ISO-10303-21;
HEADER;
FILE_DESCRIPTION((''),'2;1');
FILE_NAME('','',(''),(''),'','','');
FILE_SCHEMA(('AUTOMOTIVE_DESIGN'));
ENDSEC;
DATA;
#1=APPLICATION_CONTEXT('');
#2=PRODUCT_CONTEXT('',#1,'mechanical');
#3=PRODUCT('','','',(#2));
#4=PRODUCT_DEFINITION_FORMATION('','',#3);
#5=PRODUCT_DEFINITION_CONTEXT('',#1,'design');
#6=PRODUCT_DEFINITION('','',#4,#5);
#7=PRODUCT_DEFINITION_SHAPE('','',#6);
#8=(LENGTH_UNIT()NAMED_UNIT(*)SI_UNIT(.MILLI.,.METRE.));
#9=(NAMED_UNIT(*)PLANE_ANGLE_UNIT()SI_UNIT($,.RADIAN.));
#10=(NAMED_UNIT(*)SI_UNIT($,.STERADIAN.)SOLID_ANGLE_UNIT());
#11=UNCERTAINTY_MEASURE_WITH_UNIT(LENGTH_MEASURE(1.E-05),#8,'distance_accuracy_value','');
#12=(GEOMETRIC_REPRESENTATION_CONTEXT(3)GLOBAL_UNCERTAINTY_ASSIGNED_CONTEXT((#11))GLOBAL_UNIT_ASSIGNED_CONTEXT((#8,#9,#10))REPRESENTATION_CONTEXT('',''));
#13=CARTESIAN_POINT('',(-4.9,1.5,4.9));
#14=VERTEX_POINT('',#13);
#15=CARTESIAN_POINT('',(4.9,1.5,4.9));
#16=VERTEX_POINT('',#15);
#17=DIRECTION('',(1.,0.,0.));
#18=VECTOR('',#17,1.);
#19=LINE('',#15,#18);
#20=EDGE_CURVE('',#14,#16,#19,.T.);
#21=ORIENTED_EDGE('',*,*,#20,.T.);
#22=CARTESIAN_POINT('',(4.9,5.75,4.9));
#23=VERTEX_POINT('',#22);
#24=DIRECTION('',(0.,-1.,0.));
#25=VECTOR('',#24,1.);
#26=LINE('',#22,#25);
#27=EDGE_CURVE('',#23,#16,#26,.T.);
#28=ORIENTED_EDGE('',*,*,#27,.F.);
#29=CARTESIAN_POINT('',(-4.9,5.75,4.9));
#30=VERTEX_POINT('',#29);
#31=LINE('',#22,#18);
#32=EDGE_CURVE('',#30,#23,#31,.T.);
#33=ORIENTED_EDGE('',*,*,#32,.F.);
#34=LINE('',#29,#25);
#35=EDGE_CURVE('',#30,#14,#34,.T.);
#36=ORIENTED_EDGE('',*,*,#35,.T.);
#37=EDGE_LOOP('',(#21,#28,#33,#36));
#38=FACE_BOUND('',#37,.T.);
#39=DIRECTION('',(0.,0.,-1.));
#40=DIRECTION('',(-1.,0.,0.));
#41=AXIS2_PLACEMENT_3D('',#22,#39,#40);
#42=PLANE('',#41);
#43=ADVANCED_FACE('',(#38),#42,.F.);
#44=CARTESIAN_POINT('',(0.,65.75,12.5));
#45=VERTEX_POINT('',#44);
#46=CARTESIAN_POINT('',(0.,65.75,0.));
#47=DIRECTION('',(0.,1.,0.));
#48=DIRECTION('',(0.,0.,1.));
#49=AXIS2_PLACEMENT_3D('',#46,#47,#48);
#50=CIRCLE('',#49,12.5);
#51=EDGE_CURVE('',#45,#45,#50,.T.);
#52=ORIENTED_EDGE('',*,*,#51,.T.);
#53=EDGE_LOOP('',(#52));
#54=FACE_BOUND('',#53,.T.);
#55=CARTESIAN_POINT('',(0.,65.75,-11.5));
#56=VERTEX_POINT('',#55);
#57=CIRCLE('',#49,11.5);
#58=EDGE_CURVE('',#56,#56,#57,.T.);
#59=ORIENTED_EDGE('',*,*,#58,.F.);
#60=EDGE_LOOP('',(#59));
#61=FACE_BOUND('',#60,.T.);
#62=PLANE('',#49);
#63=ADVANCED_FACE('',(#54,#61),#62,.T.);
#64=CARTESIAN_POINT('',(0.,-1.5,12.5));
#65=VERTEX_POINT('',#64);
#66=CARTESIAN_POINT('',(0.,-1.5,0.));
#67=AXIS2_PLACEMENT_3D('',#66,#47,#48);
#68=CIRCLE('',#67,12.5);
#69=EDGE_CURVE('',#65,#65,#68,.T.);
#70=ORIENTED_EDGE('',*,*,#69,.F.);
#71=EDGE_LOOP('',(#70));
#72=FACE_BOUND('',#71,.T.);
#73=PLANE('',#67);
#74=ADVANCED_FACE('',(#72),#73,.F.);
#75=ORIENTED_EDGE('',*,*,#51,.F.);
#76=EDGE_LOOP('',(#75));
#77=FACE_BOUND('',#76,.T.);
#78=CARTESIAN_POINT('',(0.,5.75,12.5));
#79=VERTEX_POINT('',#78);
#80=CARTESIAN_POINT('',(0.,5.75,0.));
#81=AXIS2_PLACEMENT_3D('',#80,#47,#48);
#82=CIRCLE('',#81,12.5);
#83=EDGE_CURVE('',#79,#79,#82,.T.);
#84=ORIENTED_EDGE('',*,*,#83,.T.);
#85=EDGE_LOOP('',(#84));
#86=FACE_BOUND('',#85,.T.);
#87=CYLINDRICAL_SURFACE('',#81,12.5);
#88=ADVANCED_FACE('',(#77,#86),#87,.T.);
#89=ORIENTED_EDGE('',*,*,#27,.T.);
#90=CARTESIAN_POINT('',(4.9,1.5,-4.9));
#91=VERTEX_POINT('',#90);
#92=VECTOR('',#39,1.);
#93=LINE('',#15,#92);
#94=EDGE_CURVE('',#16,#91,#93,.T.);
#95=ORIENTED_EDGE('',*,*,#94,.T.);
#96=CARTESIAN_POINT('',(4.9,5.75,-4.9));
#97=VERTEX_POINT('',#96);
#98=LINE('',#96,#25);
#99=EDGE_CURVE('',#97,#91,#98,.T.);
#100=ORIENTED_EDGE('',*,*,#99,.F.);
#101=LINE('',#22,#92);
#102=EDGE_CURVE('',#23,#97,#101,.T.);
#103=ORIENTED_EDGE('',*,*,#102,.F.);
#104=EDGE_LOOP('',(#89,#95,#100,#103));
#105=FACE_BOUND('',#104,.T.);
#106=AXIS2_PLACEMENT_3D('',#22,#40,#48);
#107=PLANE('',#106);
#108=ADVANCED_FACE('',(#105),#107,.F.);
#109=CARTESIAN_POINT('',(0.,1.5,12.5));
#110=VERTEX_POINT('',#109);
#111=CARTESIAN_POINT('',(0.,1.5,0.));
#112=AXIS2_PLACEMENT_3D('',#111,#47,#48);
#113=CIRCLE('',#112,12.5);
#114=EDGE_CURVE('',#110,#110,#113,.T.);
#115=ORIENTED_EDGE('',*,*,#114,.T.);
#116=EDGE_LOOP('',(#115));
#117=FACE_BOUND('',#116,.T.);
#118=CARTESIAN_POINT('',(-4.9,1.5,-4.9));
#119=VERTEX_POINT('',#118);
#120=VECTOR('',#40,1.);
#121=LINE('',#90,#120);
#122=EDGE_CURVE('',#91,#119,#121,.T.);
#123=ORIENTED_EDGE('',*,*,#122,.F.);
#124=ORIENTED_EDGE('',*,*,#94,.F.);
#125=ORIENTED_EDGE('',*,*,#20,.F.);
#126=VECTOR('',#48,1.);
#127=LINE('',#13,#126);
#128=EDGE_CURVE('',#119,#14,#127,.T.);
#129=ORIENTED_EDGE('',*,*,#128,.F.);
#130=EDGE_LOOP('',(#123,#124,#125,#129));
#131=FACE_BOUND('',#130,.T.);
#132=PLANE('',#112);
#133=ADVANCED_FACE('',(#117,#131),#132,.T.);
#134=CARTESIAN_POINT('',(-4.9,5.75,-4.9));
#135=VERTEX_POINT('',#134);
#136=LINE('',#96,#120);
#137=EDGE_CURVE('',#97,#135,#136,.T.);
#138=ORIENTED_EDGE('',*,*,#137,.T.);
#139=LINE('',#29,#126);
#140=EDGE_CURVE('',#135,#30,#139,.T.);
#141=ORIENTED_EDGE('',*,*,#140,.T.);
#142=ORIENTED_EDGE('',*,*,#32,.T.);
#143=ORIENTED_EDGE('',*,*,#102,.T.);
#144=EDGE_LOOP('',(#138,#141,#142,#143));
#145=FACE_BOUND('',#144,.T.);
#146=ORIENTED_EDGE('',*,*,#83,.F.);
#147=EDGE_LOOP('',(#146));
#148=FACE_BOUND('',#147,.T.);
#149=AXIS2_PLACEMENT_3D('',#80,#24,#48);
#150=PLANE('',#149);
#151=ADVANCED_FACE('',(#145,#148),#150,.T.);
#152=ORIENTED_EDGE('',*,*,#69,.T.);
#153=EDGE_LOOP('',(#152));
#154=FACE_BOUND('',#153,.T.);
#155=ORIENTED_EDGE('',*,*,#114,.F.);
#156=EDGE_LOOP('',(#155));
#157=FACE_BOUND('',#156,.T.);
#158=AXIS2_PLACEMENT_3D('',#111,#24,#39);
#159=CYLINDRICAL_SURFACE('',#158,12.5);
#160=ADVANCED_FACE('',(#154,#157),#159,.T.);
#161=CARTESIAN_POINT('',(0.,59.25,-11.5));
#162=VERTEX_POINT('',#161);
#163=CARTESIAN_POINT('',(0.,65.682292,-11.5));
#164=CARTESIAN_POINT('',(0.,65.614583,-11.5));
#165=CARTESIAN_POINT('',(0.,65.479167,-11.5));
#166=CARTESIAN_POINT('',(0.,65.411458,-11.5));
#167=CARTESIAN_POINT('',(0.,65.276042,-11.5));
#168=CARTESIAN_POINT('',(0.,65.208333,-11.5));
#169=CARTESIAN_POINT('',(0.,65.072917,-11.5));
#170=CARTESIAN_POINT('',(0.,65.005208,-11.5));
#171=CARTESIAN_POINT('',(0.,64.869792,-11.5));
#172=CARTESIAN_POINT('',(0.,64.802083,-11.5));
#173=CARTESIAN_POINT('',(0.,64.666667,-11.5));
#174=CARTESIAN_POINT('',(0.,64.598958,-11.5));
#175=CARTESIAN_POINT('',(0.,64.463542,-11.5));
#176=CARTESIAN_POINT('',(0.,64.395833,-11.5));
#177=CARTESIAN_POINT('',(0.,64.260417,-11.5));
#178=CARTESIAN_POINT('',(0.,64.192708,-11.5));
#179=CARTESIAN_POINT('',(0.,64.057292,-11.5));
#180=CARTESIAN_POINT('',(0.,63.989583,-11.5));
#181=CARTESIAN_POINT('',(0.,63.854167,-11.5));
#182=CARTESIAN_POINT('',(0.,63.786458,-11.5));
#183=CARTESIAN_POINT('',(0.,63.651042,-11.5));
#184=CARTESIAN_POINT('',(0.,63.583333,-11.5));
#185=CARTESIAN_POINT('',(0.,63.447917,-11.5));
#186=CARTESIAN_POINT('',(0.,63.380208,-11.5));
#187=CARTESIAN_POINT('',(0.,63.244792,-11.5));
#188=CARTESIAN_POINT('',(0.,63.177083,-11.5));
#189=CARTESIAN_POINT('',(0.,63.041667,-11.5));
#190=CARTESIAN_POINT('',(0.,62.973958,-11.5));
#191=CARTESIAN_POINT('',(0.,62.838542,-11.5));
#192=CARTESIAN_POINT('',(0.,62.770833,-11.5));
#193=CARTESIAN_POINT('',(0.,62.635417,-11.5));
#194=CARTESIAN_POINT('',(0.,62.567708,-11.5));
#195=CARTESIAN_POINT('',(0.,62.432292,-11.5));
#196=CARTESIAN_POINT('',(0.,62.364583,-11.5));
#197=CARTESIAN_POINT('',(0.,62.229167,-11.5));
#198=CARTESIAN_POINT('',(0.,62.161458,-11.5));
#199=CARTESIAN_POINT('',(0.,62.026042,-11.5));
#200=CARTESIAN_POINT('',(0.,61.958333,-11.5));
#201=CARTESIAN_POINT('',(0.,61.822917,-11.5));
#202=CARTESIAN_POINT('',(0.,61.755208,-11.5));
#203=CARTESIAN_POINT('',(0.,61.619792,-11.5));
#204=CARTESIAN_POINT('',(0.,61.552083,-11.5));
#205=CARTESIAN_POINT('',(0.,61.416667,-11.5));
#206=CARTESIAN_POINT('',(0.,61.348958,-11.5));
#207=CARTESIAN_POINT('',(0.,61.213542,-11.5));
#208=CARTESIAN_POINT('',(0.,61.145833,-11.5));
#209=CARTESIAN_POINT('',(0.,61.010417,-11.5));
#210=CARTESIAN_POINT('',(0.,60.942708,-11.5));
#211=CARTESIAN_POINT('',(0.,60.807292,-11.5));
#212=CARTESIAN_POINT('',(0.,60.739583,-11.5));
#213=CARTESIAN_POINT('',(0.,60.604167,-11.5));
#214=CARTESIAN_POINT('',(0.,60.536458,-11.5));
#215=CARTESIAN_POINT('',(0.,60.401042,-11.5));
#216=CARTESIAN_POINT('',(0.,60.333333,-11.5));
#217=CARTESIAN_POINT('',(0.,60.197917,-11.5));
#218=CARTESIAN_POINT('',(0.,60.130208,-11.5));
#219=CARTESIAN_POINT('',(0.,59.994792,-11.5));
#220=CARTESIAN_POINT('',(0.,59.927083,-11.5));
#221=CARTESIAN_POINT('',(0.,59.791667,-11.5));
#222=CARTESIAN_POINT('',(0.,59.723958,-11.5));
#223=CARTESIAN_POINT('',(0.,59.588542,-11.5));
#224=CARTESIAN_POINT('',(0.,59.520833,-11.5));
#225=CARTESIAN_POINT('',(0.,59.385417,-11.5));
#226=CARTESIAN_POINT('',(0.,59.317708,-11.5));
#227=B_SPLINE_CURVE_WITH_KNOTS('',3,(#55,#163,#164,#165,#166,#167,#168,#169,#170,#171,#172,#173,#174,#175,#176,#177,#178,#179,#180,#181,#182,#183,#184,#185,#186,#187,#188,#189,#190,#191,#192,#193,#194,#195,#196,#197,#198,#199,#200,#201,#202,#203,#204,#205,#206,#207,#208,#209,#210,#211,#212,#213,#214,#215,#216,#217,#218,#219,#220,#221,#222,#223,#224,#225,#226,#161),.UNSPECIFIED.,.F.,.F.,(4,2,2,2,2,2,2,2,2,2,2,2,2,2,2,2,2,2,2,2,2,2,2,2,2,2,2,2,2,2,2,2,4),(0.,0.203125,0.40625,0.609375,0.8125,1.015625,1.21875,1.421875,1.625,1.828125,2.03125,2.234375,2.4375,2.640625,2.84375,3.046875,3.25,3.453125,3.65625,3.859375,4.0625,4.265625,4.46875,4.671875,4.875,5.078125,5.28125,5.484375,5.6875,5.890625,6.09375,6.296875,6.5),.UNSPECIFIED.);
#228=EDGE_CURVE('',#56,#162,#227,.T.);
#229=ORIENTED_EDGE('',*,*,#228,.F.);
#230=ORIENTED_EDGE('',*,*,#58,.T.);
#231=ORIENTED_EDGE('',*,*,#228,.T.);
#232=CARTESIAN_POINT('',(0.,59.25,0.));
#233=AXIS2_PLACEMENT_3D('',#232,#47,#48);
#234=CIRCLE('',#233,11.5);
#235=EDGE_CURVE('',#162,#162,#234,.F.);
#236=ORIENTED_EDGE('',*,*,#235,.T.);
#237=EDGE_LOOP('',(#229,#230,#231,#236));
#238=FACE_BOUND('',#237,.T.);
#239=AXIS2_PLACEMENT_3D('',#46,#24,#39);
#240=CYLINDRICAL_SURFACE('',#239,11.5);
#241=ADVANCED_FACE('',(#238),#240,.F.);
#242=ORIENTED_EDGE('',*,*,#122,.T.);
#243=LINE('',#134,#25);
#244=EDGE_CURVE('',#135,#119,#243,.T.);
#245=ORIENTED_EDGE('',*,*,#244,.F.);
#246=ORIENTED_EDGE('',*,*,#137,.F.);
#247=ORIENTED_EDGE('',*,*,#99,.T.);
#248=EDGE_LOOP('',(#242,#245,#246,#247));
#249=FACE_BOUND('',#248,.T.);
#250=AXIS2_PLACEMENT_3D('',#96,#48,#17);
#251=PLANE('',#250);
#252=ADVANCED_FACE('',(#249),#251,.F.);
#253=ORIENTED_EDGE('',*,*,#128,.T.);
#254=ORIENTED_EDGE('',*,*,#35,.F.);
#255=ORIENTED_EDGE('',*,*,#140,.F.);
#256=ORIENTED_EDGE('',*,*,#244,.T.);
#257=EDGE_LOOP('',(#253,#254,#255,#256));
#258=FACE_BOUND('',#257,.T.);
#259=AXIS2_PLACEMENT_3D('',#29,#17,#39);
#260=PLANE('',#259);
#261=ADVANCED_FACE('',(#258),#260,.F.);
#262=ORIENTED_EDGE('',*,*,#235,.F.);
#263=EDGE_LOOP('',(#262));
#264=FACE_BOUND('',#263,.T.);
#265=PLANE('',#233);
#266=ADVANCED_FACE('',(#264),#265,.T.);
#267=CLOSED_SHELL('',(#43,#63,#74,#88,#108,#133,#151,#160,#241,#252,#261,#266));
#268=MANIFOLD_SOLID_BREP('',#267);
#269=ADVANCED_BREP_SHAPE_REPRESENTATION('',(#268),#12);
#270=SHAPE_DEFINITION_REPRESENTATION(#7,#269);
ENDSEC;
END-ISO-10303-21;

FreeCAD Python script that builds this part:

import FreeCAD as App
import Part
import Sketcher
from FreeCAD import Vector
Q = App.Units.Quantity


def add_polygon(sketch, points):
    """Adds a closed chain of lines whose ends are joined by coincident constraints."""
    first, n = sketch.GeometryCount, len(points)
    for a, b in zip(points, points[1:] + points[:1]):
        sketch.addGeometry(Part.LineSegment(App.Vector(*a, 0), App.Vector(*b, 0)), False)
    for i in range(n):
        sketch.addConstraint(Sketcher.Constraint("Coincident", first + i, 2, first + (i + 1) % n, 1))

doc = App.newDocument("Part")
body = doc.addObject("PartDesign::Body", "Body")

# Sketch on XZ plane
sketch1 = body.newObject("Sketcher::SketchObject", "Sketch")
sketch1.AttachmentSupport = (doc.getObject("XZ_Plane"), [""])
sketch1.MapMode = "FlatFace"
sketch1.addGeometry(Part.Circle(Vector(0, 0, 0), Vector(0, 0, 1), 12), False)
sketch1.addConstraint(Sketcher.Constraint("Coincident", 0, 3, -1, 1))
sketch1.addConstraint(Sketcher.Constraint("Diameter", 0, Q("25 mm")))
pad1 = body.newObject("PartDesign::Pad", "Pad")
pad1.Profile = sketch1
pad1.Length = 3
pad1.Midplane = True

# Sketch on XZ plane
sketch2 = body.newObject("Sketcher::SketchObject", "Sketch001")
sketch2.AttachmentSupport = (doc.getObject("XZ_Plane"), [""])
sketch2.MapMode = "FlatFace"
sketch2.AttachmentOffset = App.Placement(Vector(0, 0, -1.5), App.Rotation())
add_polygon(sketch2, [(-5, -5), (-5, 5), (5, 5), (5, -5)])  # lines 0-3
sketch2.addConstraint(Sketcher.Constraint("Vertical", 0))
sketch2.addConstraint(Sketcher.Constraint("Horizontal", 1))
sketch2.addConstraint(Sketcher.Constraint("Vertical", 2))
sketch2.addConstraint(Sketcher.Constraint("Horizontal", 3))
sketch2.addConstraint(Sketcher.Constraint("Symmetric", 0, 2, 2, 2, -1, 1))
sketch2.addConstraint(Sketcher.Constraint("Equal", 3, 0))
sketch2.addConstraint(Sketcher.Constraint("DistanceX", 1, 1, 1, 2, Q("9.8 mm")))
pad2 = body.newObject("PartDesign::Pad", "Pad001")
pad2.Profile = sketch2
pad2.Length = 4.25
pad2.Reversed = True
doc.recompute()

datumplane = body.newObject("PartDesign::Plane", "DatumPlane")
datumplane.AttachmentSupport = (doc.getObject("XZ_Plane"), [""])
datumplane.MapMode = "FlatFace"
datumplane.AttachmentOffset = App.Placement(Vector(0, 0, -3.625), App.Rotation())
mirrored = body.newObject("PartDesign::Mirrored", "Mirrored")
mirrored.Originals = [pad1]
mirrored.MirrorPlane = (datumplane, [""])
body.Tip = mirrored

# Sketch on XZ plane
sketch3 = body.newObject("Sketcher::SketchObject", "Sketch002")
sketch3.AttachmentSupport = (doc.getObject("XZ_Plane"), [""])
sketch3.MapMode = "FlatFace"
sketch3.AttachmentOffset = App.Placement(Vector(0, 0, -8.75), App.Rotation())
sketch3.addGeometry(Part.Circle(Vector(0, 0, 0), Vector(0, 0, 1), 12), False)
sketch3.addConstraint(Sketcher.Constraint("Coincident", 0, 3, -1, 1))
sketch3.addConstraint(Sketcher.Constraint("Diameter", 0, Q("25 mm")))
pad3 = body.newObject("PartDesign::Pad", "Pad002")
pad3.Profile = sketch3
pad3.Length = 47.5
pad3.Reversed = True

# Sketch on XZ plane
sketch4 = body.newObject("Sketcher::SketchObject", "Sketch003")
sketch4.AttachmentSupport = (doc.getObject("XZ_Plane"), [""])
sketch4.MapMode = "FlatFace"
sketch4.AttachmentOffset = App.Placement(Vector(0, 0, -56.25), App.Rotation())
sketch4.addGeometry(Part.Circle(Vector(0, 0, 0), Vector(0, 0, 1), 12), False)
sketch4.addConstraint(Sketcher.Constraint("Coincident", 0, 3, -1, 1))
sketch4.addConstraint(Sketcher.Constraint("Diameter", 0, Q("25 mm")))
pad4 = body.newObject("PartDesign::Pad", "Pad003")
pad4.Profile = sketch4
pad4.Length = 3
pad4.Reversed = True

# Sketch on XZ plane
sketch5 = body.newObject("Sketcher::SketchObject", "Sketch004")
sketch5.AttachmentSupport = (doc.getObject("XZ_Plane"), [""])
sketch5.MapMode = "FlatFace"
sketch5.AttachmentOffset = App.Placement(Vector(0, 0, -59.25), App.Rotation())
sketch5.addGeometry(Part.Circle(Vector(0, 0, 0), Vector(0, 0, 1), 12), False)
sketch5.addGeometry(Part.Circle(Vector(0, 0, 0), Vector(0, 0, 1), 12), False)
sketch5.addConstraint(Sketcher.Constraint("Coincident", 0, 3, -1, 1))
sketch5.addConstraint(Sketcher.Constraint("Coincident", 1, 3, -1, 1))
sketch5.addConstraint(Sketcher.Constraint("Diameter", 0, Q("25 mm")))
sketch5.addConstraint(Sketcher.Constraint("Diameter", 1, Q("23 mm")))
pad5 = body.newObject("PartDesign::Pad", "Pad004")
pad5.Profile = sketch5
pad5.Length = 6.5
pad5.Reversed = True

doc.recompute()
